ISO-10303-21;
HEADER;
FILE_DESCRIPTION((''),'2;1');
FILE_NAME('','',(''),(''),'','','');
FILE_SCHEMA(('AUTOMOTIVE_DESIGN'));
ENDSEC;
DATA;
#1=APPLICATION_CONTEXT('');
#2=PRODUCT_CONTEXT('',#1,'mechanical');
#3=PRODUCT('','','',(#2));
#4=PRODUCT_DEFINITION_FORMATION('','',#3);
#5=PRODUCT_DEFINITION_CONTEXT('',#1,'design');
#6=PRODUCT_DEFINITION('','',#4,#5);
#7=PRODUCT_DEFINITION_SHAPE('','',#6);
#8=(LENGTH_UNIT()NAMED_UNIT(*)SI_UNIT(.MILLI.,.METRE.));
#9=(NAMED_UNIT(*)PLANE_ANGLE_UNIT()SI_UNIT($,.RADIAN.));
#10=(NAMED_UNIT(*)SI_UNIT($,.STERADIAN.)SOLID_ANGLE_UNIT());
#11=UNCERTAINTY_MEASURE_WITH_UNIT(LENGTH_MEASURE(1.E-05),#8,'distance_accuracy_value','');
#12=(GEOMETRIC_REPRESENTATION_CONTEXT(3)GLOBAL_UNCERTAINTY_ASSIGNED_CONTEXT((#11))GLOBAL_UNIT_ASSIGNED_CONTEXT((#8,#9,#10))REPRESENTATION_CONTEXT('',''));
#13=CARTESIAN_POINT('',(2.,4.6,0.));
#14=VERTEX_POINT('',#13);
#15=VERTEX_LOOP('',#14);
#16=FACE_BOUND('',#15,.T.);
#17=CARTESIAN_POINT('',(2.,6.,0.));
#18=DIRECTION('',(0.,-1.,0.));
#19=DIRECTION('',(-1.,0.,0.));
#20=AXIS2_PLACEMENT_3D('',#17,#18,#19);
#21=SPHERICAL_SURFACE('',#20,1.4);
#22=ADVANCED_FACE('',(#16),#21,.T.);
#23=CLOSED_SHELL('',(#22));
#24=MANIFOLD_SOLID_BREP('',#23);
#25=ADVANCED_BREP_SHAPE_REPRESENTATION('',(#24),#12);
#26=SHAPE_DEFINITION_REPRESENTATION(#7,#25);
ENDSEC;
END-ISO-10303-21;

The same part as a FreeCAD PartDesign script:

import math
import FreeCAD as App
import Part
import Sketcher
from FreeCAD import Vector

doc = App.newDocument("Part")
body = doc.addObject("PartDesign::Body", "Body")

sketch1 = doc.addObject("Sketcher::SketchObject", "Sketch")
body.addObject(sketch1)
sketch1.AttachmentSupport = (doc.XY_Plane, [""])
sketch1.MapMode = "FlatFace"
sketch1.addGeometry(Part.LineSegment(Vector(2, 4.6, 0), Vector(2, 7.4, 0)), False)
sketch1.addGeometry(Part.ArcOfCircle(Part.Circle(Vector(2, 6, 0), Vector(0, 0, 1), 1.4), math.radians(90), math.radians(270)), False)
sketch1.addGeometry(Part.LineSegment(Vector(2, 4.6, 0), Vector(2, 7.4, 0)), True)
sketch1.addConstraint(Sketcher.Constraint("Coincident", 0, 1, 1, 2))
sketch1.addConstraint(Sketcher.Constraint("Coincident", 1, 1, 0, 2))
sketch1.addConstraint(Sketcher.Constraint("Vertical", 0))
sketch1.addConstraint(Sketcher.Constraint("Vertical", 2))
sketch1.addConstraint(Sketcher.Constraint("Coincident", 2, 1, 0, 1))
sketch1.addConstraint(Sketcher.Constraint("Vertical", 1, 3, 0, 1))
sketch1.addConstraint(Sketcher.Constraint("Equal", 0, 2))
sketch1.addConstraint(Sketcher.Constraint("Radius", 1, 1.4))
sketch1.addConstraint(Sketcher.Constraint("DistanceX", -1, 1, 1, 3, 2.0))
sketch1.addConstraint(Sketcher.Constraint("DistanceY", -1, 1, 1, 3, 6.0))
revolution = doc.addObject("PartDesign::Revolution", "Revolution")
body.addObject(revolution)
revolution.Profile = sketch1
revolution.ReferenceAxis = (sketch1, ["Axis0"])
revolution.Angle = 360

doc.recompute()
